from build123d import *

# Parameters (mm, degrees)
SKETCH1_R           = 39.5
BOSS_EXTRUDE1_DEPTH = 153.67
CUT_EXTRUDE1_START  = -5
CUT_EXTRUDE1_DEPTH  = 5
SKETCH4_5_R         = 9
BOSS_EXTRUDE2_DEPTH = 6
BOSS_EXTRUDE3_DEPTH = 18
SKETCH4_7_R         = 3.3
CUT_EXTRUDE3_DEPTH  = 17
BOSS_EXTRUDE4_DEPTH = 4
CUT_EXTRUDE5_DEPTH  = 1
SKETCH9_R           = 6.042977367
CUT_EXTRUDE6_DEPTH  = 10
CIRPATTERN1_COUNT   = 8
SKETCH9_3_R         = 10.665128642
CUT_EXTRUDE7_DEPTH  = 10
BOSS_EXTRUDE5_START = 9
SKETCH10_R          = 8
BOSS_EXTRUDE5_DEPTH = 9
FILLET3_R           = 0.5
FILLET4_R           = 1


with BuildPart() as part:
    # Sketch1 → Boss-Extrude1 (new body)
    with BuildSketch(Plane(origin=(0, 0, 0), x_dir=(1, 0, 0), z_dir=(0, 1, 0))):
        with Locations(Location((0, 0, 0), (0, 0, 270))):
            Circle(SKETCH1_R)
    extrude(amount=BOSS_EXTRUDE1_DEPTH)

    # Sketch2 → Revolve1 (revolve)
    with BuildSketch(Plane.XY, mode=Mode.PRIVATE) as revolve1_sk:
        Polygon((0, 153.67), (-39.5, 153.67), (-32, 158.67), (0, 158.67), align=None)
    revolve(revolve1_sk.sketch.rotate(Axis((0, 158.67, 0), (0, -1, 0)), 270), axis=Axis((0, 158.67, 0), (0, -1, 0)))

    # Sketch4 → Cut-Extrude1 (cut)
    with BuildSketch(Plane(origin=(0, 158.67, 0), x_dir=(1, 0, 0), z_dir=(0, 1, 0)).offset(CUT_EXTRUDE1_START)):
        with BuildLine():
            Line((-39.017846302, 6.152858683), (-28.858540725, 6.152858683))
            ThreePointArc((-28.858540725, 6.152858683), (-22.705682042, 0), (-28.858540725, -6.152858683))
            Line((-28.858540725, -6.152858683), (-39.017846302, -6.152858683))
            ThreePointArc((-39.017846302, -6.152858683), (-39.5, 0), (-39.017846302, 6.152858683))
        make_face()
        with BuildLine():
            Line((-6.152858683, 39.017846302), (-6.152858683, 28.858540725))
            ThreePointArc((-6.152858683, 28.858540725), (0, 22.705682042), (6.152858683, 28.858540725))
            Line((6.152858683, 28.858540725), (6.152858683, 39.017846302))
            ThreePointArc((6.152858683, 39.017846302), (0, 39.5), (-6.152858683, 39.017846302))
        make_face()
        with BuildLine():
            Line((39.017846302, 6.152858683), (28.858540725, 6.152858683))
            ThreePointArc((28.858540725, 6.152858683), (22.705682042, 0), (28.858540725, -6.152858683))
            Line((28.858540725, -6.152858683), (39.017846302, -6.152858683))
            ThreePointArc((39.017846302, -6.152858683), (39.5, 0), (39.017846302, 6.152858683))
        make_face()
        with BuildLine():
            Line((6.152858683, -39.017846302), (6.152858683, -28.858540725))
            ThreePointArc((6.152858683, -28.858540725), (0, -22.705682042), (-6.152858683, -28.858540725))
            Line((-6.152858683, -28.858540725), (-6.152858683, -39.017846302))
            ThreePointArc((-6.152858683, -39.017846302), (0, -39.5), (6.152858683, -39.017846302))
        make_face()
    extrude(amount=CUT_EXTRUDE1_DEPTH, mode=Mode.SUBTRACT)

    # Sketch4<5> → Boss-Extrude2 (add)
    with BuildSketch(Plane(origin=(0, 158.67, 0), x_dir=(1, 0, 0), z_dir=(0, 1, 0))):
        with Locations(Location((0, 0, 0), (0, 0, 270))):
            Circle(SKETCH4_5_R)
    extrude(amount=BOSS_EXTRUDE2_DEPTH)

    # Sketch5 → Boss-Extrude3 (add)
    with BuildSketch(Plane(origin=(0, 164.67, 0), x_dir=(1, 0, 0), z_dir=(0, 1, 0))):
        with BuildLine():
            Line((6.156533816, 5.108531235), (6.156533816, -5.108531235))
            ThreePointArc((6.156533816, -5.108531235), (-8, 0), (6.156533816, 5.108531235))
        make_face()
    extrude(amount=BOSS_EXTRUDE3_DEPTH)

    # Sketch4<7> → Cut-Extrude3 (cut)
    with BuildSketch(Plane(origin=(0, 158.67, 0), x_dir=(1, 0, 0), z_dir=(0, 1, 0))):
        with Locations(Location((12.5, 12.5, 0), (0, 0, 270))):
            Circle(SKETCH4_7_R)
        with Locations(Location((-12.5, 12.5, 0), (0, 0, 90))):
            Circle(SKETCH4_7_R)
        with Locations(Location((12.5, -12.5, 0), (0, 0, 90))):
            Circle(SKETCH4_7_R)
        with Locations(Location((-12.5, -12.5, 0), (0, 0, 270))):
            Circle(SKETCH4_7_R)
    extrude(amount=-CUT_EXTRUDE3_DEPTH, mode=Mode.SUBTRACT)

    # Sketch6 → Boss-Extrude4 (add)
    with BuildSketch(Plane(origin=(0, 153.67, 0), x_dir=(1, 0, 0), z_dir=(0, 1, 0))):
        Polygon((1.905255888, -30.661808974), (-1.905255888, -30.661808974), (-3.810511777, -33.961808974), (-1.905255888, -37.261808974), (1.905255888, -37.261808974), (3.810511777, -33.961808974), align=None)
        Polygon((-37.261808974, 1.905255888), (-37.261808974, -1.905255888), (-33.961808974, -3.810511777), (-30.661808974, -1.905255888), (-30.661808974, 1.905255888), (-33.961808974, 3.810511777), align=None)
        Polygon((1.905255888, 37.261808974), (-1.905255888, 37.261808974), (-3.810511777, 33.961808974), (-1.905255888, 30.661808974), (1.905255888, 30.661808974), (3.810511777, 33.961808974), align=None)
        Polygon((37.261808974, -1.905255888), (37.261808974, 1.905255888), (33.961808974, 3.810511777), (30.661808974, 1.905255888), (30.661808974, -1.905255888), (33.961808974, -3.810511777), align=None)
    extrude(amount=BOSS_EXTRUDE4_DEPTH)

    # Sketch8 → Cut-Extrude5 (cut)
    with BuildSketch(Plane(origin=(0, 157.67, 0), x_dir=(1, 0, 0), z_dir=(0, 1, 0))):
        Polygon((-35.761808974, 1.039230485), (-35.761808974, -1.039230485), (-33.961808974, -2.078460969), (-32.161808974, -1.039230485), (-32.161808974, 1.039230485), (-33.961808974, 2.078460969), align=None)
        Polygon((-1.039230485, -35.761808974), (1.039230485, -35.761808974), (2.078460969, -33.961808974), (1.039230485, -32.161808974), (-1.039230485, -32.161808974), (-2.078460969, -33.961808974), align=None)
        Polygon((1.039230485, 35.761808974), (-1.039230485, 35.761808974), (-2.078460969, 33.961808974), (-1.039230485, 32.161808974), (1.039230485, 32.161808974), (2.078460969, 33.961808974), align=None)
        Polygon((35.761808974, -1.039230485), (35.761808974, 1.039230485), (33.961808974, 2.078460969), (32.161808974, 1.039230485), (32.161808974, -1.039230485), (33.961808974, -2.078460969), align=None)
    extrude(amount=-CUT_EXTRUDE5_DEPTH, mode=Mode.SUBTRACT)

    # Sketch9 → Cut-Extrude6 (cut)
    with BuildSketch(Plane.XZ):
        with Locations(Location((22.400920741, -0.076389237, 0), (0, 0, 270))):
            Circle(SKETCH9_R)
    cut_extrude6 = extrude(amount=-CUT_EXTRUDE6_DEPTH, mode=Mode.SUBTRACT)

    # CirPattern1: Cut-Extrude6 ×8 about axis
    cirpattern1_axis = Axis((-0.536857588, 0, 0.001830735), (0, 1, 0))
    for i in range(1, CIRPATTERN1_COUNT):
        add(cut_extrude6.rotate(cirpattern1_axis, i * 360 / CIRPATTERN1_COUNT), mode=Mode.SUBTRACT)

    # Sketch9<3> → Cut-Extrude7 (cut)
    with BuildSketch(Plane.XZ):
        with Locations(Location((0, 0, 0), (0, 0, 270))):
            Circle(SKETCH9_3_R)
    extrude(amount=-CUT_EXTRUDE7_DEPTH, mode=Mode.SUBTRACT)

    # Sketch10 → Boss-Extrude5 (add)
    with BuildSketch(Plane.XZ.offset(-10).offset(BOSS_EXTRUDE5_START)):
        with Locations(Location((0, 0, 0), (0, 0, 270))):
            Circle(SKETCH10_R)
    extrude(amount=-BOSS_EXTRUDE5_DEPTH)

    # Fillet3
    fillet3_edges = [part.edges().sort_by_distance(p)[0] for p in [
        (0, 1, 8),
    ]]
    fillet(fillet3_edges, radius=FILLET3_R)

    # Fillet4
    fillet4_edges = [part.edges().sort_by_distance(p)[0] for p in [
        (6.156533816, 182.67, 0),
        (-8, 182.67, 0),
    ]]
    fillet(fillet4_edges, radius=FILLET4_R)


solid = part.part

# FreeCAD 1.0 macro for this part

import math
import FreeCAD as App
import Part
import Sketcher

V = App.Vector
Q = App.Units.Quantity


def edges_at(feature, points):
    """Names of the edges that pass closest to the given points."""
    edges = feature.Shape.Edges
    near = lambda p: min(range(len(edges)), key=lambda i: edges[i].distToShape(Part.Vertex(*p))[0])
    return sorted({f"Edge{near(p) + 1}" for p in points})


def add_polygon(sketch, points):
    """Adds a closed chain of lines whose ends are joined by coincident constraints."""
    first, n = sketch.GeometryCount, len(points)
    for a, b in zip(points, points[1:] + points[:1]):
        sketch.addGeometry(Part.LineSegment(App.Vector(*a, 0), App.Vector(*b, 0)), False)
    for i in range(n):
        sketch.addConstraint(Sketcher.Constraint("Coincident", first + i, 2, first + (i + 1) % n, 1))

doc = App.newDocument("Part")
params = doc.addObject("Spreadsheet::Sheet", "Params")
for row, (alias, value) in enumerate([
    ("sketch1_diameter", "79 mm"),
    ("pad1_length", "153.67 mm"),
    ("sketch2_width", "32 mm"),
    ("sketch2_height", "5 mm"),
    ("sketch2_width2", "39.5 mm"),
    ("revolution_angle", "360 deg"),
    ("sketch3_radius", "39.5 mm"),
    ("pocket1_length", "5 mm"),
    ("sketch4_diameter", "18 mm"),
    ("pad2_length", "6 mm"),
    ("sketch5_radius", "8 mm"),
    ("pad3_length", "18 mm"),
    ("sketch6_diameter", "6.6 mm"),
    ("pocket2_length", "17 mm"),
    ("pad4_length", "4 mm"),
    ("pocket3_length", "1 mm"),
    ("pocket4_length", "10 mm"),
    ("pocket5_length", "10 mm"),
    ("sketch11_diameter", "16 mm"),
    ("pad5_length", "9 mm"),
    ("fillet_radius", "0.5 mm"),
    ("fillet2_radius", "1 mm"),
], start=1):
    params.set(f"A{row}", alias)
    params.set(f"B{row}", "=" + value)
    params.setAlias(f"B{row}", alias)

body = doc.addObject("PartDesign::Body", "Body")

sketch1 = body.newObject("Sketcher::SketchObject", "Sketch")
sketch1.AttachmentSupport = (doc.getObject("XZ_Plane"), [""])
sketch1.MapMode = "FlatFace"
sketch1.addGeometry(Part.Circle(V(0, 0, 0), V(0, 0, 1), 40), False)
sketch1.addConstraint([
    Sketcher.Constraint("Coincident", 0, 3, -1, 1),
    Sketcher.Constraint("Diameter", 0, Q("79 mm")),
])
sketch1.setExpression("Constraints[1]", "Params.sketch1_diameter")
pad1 = body.newObject("PartDesign::Pad", "Pad")
pad1.Profile = sketch1
pad1.setExpression("Length", "Params.pad1_length")
pad1.Reversed = True

sketch2 = body.newObject("Sketcher::SketchObject", "Sketch001")
sketch2.AttachmentSupport = (doc.getObject("XY_Plane"), [""])
sketch2.MapMode = "FlatFace"
add_polygon(sketch2, [(-40, 154), (0, 154), (0, 159), (-32, 159)])
sketch2.addConstraint([
    Sketcher.Constraint("Horizontal", 0),
    Sketcher.Constraint("Vertical", 1),
    Sketcher.Constraint("Horizontal", 2),
    Sketcher.Constraint("PointOnObject", 0, 2, -2),
    Sketcher.Constraint("DistanceX", 2, 2, 2, 1, Q("32 mm")),
    Sketcher.Constraint("DistanceY", 1, 1, 1, 2, Q("5 mm")),
    Sketcher.Constraint("DistanceX", 0, 1, 0, 2, Q("39.5 mm")),
    Sketcher.Constraint("DistanceY", -1, 1, 0, 2, Q("153.67 mm")),
])
sketch2.setExpression("Constraints[8]", "Params.sketch2_width")
sketch2.setExpression("Constraints[9]", "Params.sketch2_height")
sketch2.setExpression("Constraints[10]", "Params.sketch2_width2")
revolution = body.newObject("PartDesign::Revolution", "Revolution")
revolution.Profile = sketch2
revolution.ReferenceAxis = (sketch2, ["V_Axis"])
revolution.setExpression("Angle", "Params.revolution_angle")

sketch3 = body.newObject("Sketcher::SketchObject", "Sketch002")
sketch3.AttachmentSupport = (doc.getObject("XZ_Plane"), [""])
sketch3.MapMode = "FlatFace"
sketch3.AttachmentOffset = App.Placement(V(0, 0, -153.67), App.Rotation())
sketch3.addGeometry([
    Part.LineSegment(V(-29, -6, 0), V(-39, -6, 0)),
    Part.ArcOfCircle(Part.Circle(V(0, 0, 0), V(0, 0, 1), 40), math.radians(171.04), math.radians(188.96)),
    Part.LineSegment(V(-39, 6, 0), V(-29, 6, 0)),
    Part.ArcOfCircle(Part.Circle(V(-29, 0, 0), V(0, 0, 1), 6), math.radians(-90), math.radians(90)),
    Part.LineSegment(V(-6, -39, 0), V(-6, -29, 0)),
    Part.ArcOfCircle(Part.Circle(V(0, -29, 0), V(0, 0, 1), 6), math.radians(0), math.radians(180)),
    Part.LineSegment(V(6, -29, 0), V(6, -39, 0)),
    Part.ArcOfCircle(Part.Circle(V(0, 0, 0), V(0, 0, 1), 40), math.radians(-98.96), math.radians(-81.04)),
    Part.LineSegment(V(39, -6, 0), V(29, -6, 0)),
    Part.ArcOfCircle(Part.Circle(V(29, 0, 0), V(0, 0, 1), 6), math.radians(90), math.radians(270)),
    Part.LineSegment(V(29, 6, 0), V(39, 6, 0)),
    Part.ArcOfCircle(Part.Circle(V(0, 0, 0), V(0, 0, 1), 40), math.radians(-8.96), math.radians(8.96)),
    Part.LineSegment(V(6, 39, 0), V(6, 29, 0)),
    Part.ArcOfCircle(Part.Circle(V(0, 29, 0), V(0, 0, 1), 6), math.radians(180), math.radians(360)),
    Part.LineSegment(V(-6, 29, 0), V(-6, 39, 0)),
    Part.ArcOfCircle(Part.Circle(V(0, 0, 0), V(0, 0, 1), 40), math.radians(81.04), math.radians(98.96)),
], False)
sketch3.addConstraint([
    Sketcher.Constraint("Coincident", 0, 2, 1, 2),
    Sketcher.Constraint("Coincident", 1, 1, 2, 1),
    Sketcher.Constraint("Tangent", 2, 2, 3, 2),
    Sketcher.Constraint("Tangent", 3, 1, 0, 1),
    Sketcher.Constraint("Tangent", 4, 2, 5, 2),
    Sketcher.Constraint("Tangent", 5, 1, 6, 1),
    Sketcher.Constraint("Coincident", 6, 2, 7, 2),
    Sketcher.Constraint("Coincident", 7, 1, 4, 1),
    Sketcher.Constraint("Tangent", 8, 2, 9, 2),
    Sketcher.Constraint("Tangent", 9, 1, 10, 1),
    Sketcher.Constraint("Coincident", 10, 2, 11, 2),
    Sketcher.Constraint("Coincident", 11, 1, 8, 1),
    Sketcher.Constraint("Tangent", 12, 2, 13, 2),
    Sketcher.Constraint("Tangent", 13, 1, 14, 1),
    Sketcher.Constraint("Coincident", 14, 2, 15, 2),
    Sketcher.Constraint("Coincident", 15, 1, 12, 1),
    Sketcher.Constraint("Horizontal", 0),
    Sketcher.Constraint("Horizontal", 2),
    Sketcher.Constraint("Vertical", 4),
    Sketcher.Constraint("Vertical", 6),
    Sketcher.Constraint("Horizontal", 8),
    Sketcher.Constraint("Horizontal", 10),
    Sketcher.Constraint("Vertical", 12),
    Sketcher.Constraint("Vertical", 14),
    Sketcher.Constraint("Coincident", 1, 3, -1, 1),
    Sketcher.Constraint("Coincident", 7, 3, -1, 1),
    Sketcher.Constraint("Coincident", 11, 3, -1, 1),
    Sketcher.Constraint("Coincident", 15, 3, -1, 1),
    Sketcher.Constraint("Equal", 3, 5),
    Sketcher.Constraint("Equal", 1, 7),
    Sketcher.Constraint("Equal", 5, 9),
    Sketcher.Constraint("Equal", 7, 11),
    Sketcher.Constraint("Equal", 9, 13),
    Sketcher.Constraint("Equal", 11, 15),
    Sketcher.Constraint("Symmetric", 3, 3, 9, 3, -1, 1),
    Sketcher.Constraint("Symmetric", 5, 3, 13, 3, -1, 1),
    Sketcher.Constraint("PointOnObject", 3, 3, -1),
    Sketcher.Constraint("PointOnObject", 5, 3, -2),
    Sketcher.Constraint("Equal", 10, 4),
    Sketcher.Constraint("Radius", 1, Q("39.5 mm")),
    Sketcher.Constraint("Radius", 3, Q("6.152859 mm")),
    Sketcher.Constraint("DistanceX", 0, 2, 0, 1, Q("10.159306 mm")),
])
sketch3.setExpression("Constraints[39]", "Params.sketch3_radius")
pocket1 = body.newObject("PartDesign::Pocket", "Pocket")
pocket1.Profile = sketch3
pocket1.setExpression("Length", "Params.pocket1_length")

sketch4 = body.newObject("Sketcher::SketchObject", "Sketch003")
sketch4.AttachmentSupport = (doc.getObject("XZ_Plane"), [""])
sketch4.MapMode = "FlatFace"
sketch4.AttachmentOffset = App.Placement(V(0, 0, -158.67), App.Rotation())
sketch4.addGeometry(Part.Circle(V(0, 0, 0), V(0, 0, 1), 9), False)
sketch4.addConstraint([
    Sketcher.Constraint("Coincident", 0, 3, -1, 1),
    Sketcher.Constraint("Diameter", 0, Q("18 mm")),
])
sketch4.setExpression("Constraints[1]", "Params.sketch4_diameter")
pad2 = body.newObject("PartDesign::Pad", "Pad001")
pad2.Profile = sketch4
pad2.setExpression("Length", "Params.pad2_length")
pad2.Reversed = True

sketch5 = body.newObject("Sketcher::SketchObject", "Sketch004")
sketch5.AttachmentSupport = (doc.getObject("XZ_Plane"), [""])
sketch5.MapMode = "FlatFace"
sketch5.AttachmentOffset = App.Placement(V(0, 0, -164.67), App.Rotation())
sketch5.addGeometry([
    Part.LineSegment(V(6, 5, 0), V(6, -5, 0)),
    Part.ArcOfCircle(Part.Circle(V(0, 0, 0), V(0, 0, 1), 8), math.radians(40), math.radians(320)),
], False)
sketch5.addConstraint([
    Sketcher.Constraint("Coincident", 0, 1, 1, 1),
    Sketcher.Constraint("Coincident", 1, 2, 0, 2),
    Sketcher.Constraint("Vertical", 0),
    Sketcher.Constraint("Coincident", 1, 3, -1, 1),
    Sketcher.Constraint("Radius", 1, Q("8 mm")),
    Sketcher.Constraint("DistanceY", 0, 2, 0, 1, Q("10.217062 mm")),
])
sketch5.setExpression("Constraints[4]", "Params.sketch5_radius")
pad3 = body.newObject("PartDesign::Pad", "Pad002")
pad3.Profile = sketch5
pad3.setExpression("Length", "Params.pad3_length")
pad3.Reversed = True

sketch6 = body.newObject("Sketcher::SketchObject", "Sketch005")
sketch6.AttachmentSupport = (doc.getObject("XZ_Plane"), [""])
sketch6.MapMode = "FlatFace"
sketch6.AttachmentOffset = App.Placement(V(0, 0, -158.67), App.Rotation())
sketch6.addGeometry([
    Part.Circle(V(12.5, -12.5, 0), V(0, 0, 1), 3.3),
    Part.Circle(V(-12.5, -12.5, 0), V(0, 0, 1), 3.3),
    Part.Circle(V(12.5, 12.5, 0), V(0, 0, 1), 3.3),
    Part.Circle(V(-12.5, 12.5, 0), V(0, 0, 1), 3.3),
], False)
sketch6.addConstraint([
    Sketcher.Constraint("Equal", 0, 1),
    Sketcher.Constraint("Equal", 1, 2),
    Sketcher.Constraint("Equal", 2, 3),
    Sketcher.Constraint("Symmetric", 1, 3, 2, 3, -1, 1),
    Sketcher.Constraint("Symmetric", 0, 3, 3, 3, -1, 1),
    Sketcher.Constraint("Symmetric", 0, 3, 1, 3, -2),
    Sketcher.Constraint("Diameter", 0, Q("6.6 mm")),
    Sketcher.Constraint("DistanceX", 1, 3, 0, 3, Q("25 mm")),
    Sketcher.Constraint("DistanceY", 0, 3, 2, 3, Q("25 mm")),
])
sketch6.setExpression("Constraints[6]", "Params.sketch6_diameter")
pocket2 = body.newObject("PartDesign::Pocket", "Pocket001")
pocket2.Profile = sketch6
pocket2.setExpression("Length", "Params.pocket2_length")
pocket2.Reversed = True

sketch7 = body.newObject("Sketcher::SketchObject", "Sketch006")
sketch7.AttachmentSupport = (doc.getObject("XZ_Plane"), [""])
sketch7.MapMode = "FlatFace"
sketch7.AttachmentOffset = App.Placement(V(0, 0, -153.67), App.Rotation())
add_polygon(sketch7, [(1.9, 30.7), (-1.9, 30.7), (-3.8, 34), (-1.9, 37.3), (1.9, 37.3), (3.8, 34)])
add_polygon(sketch7, [(-37.3, -1.9), (-37.3, 1.9), (-34, 3.8), (-30.7, 1.9), (-30.7, -1.9), (-34, -3.8)])
add_polygon(sketch7, [(1.9, -37.3), (-1.9, -37.3), (-3.8, -34), (-1.9, -30.7), (1.9, -30.7), (3.8, -34)])
add_polygon(sketch7, [(37.3, 1.9), (37.3, -1.9), (34, -3.8), (30.7, -1.9), (30.7, 1.9), (34, 3.8)])
sketch7.addConstraint([
    Sketcher.Constraint("Horizontal", 0),
    Sketcher.Constraint("Horizontal", 3),
    Sketcher.Constraint("Vertical", 6),
    Sketcher.Constraint("Vertical", 9),
    Sketcher.Constraint("Horizontal", 12),
    Sketcher.Constraint("Horizontal", 15),
    Sketcher.Constraint("Vertical", 18),
    Sketcher.Constraint("Vertical", 21),
    Sketcher.Constraint("Symmetric", 3, 2, 12, 2, -1, 1),
    Sketcher.Constraint("Symmetric", 4, 2, 13, 2, -1, 1),
    Sketcher.Constraint("Symmetric", 5, 2, 14, 2, -1, 1),
    Sketcher.Constraint("Symmetric", 1, 2, 16, 2, -1, 1),
    Sketcher.Constraint("Symmetric", 6, 2, 18, 2, -1, 1),
    Sketcher.Constraint("Symmetric", 7, 2, 19, 2, -1, 1),
    Sketcher.Constraint("Symmetric", 8, 2, 20, 2, -1, 1),
    Sketcher.Constraint("Symmetric", 10, 2, 22, 2, -1, 1),
    Sketcher.Constraint("Symmetric", 1, 2, 4, 2, -2),
    Sketcher.Constraint("Symmetric", 10, 2, 19, 2, -2),
    Sketcher.Constraint("Parallel", 1, 4),
    Sketcher.Constraint("Parallel", 2, 5),
    Sketcher.Constraint("Perpendicular", 4, 7),
    Sketcher.Constraint("Perpendicular", 5, 8),
    Sketcher.Constraint("Parallel", 7, 10),
    Sketcher.Constraint("Parallel", 8, 11),
    Sketcher.Constraint("Parallel", 13, 16),
    Sketcher.Constraint("Parallel", 14, 17),
    Sketcher.Constraint("Parallel", 19, 22),
    Sketcher.Constraint("Parallel", 20, 23),
    Sketcher.Constraint("Horizontal", 6, 2, 8, 2),
    Sketcher.Constraint("Horizontal", 9, 2, 11, 2),
    Sketcher.Constraint("Vertical", 0, 2, 2, 2),
    Sketcher.Constraint("Equal", 15, 6),
    Sketcher.Constraint("Equal", 5, 7),
    Sketcher.Constraint("Angle", 1, Q("120 deg")),
    Sketcher.Constraint("DistanceY", 0, 2, 1, 2, Q("3.3 mm")),
    Sketcher.Constraint("DistanceX", 0, 2, 0, 1, Q("3.810512 mm")),
    Sketcher.Constraint("DistanceY", -1, 1, 0, 2, Q("30.661809 mm")),
    Sketcher.Constraint("DistanceX", 6, 2, -1, 1, Q("37.261809 mm")),
])
pad4 = body.newObject("PartDesign::Pad", "Pad003")
pad4.Profile = sketch7
pad4.setExpression("Length", "Params.pad4_length")
pad4.Reversed = True

sketch8 = body.newObject("Sketcher::SketchObject", "Sketch007")
sketch8.AttachmentSupport = (doc.getObject("XZ_Plane"), [""])
sketch8.MapMode = "FlatFace"
sketch8.AttachmentOffset = App.Placement(V(0, 0, -157.67), App.Rotation())
add_polygon(sketch8, [(-35.8, -1), (-35.8, 1), (-34, 2.1), (-32.2, 1), (-32.2, -1), (-34, -2.1)])
add_polygon(sketch8, [(-1, 35.8), (1, 35.8), (2.1, 34), (1, 32.2), (-1, 32.2), (-2.1, 34)])
add_polygon(sketch8, [(1, -35.8), (-1, -35.8), (-2.1, -34), (-1, -32.2), (1, -32.2), (2.1, -34)])
add_polygon(sketch8, [(35.8, 1), (35.8, -1), (34, -2.1), (32.2, -1), (32.2, 1), (34, 2.1)])
sketch8.addConstraint([
    Sketcher.Constraint("Vertical", 0),
    Sketcher.Constraint("Vertical", 3),
    Sketcher.Constraint("Horizontal", 6),
    Sketcher.Constraint("Horizontal", 9),
    Sketcher.Constraint("Horizontal", 12),
    Sketcher.Constraint("Horizontal", 15),
    Sketcher.Constraint("Vertical", 18),
    Sketcher.Constraint("Vertical", 21),
    Sketcher.Constraint("Symmetric", 6, 2, 12, 2, -1, 1),
    Sketcher.Constraint("Symmetric", 7, 2, 13, 2, -1, 1),
    Sketcher.Constraint("Symmetric", 8, 2, 14, 2, -1, 1),
    Sketcher.Constraint("Symmetric", 10, 2, 16, 2, -1, 1),
    Sketcher.Constraint("Symmetric", 0, 2, 18, 2, -1, 1),
    Sketcher.Constraint("Symmetric", 1, 2, 19, 2, -1, 1),
    Sketcher.Constraint("Symmetric", 2, 2, 20, 2, -1, 1),
    Sketcher.Constraint("Symmetric", 4, 2, 22, 2, -1, 1),
    Sketcher.Constraint("Symmetric", 7, 2, 10, 2, -2),
    Sketcher.Constraint("Symmetric", 4, 2, 19, 2, -2),
    Sketcher.Constraint("Parallel", 1, 4),
    Sketcher.Constraint("Parallel", 2, 5),
    Sketcher.Constraint("Perpendicular", 4, 7),
    Sketcher.Constraint("Perpendicular", 5, 8),
    Sketcher.Constraint("Parallel", 7, 10),
    Sketcher.Constraint("Parallel", 8, 11),
    Sketcher.Constraint("Parallel", 13, 16),
    Sketcher.Constraint("Parallel", 14, 17),
    Sketcher.Constraint("Parallel", 19, 22),
    Sketcher.Constraint("Parallel", 20, 23),
    Sketcher.Constraint("Horizontal", 0, 2, 2, 2),
    Sketcher.Constraint("Horizontal", 3, 2, 5, 2),
    Sketcher.Constraint("Vertical", 6, 2, 8, 2),
    Sketcher.Constraint("Equal", 15, 0),
    Sketcher.Constraint("Equal", 5, 7),
    Sketcher.Constraint("Angle", 1, Q("30 deg")),
    Sketcher.Constraint("DistanceX", 0, 2, 1, 2, Q("1.8 mm")),
    Sketcher.Constraint("DistanceX", 6, 1, 6, 2, Q("2.078461 mm")),
    Sketcher.Constraint("DistanceX", 0, 2, -1, 1, Q("35.761809 mm")),
    Sketcher.Constraint("DistanceY", -1, 1, 6, 2, Q("35.761809 mm")),
])
pocket3 = body.newObject("PartDesign::Pocket", "Pocket002")
pocket3.Profile = sketch8
pocket3.setExpression("Length", "Params.pocket3_length")
pocket3.Reversed = True

sketch9 = body.newObject("Sketcher::SketchObject", "Sketch008")
sketch9.AttachmentSupport = (doc.getObject("XZ_Plane"), [""])
sketch9.MapMode = "FlatFace"
sketch9.addGeometry(Part.Circle(V(22, 0, 0), V(0, 0, 1), 6), False)
sketch9.addConstraint([
    Sketcher.Constraint("Diameter", 0, Q("12.085955 mm")),
    Sketcher.Constraint("DistanceX", -1, 1, 0, 3, Q("22.400921 mm")),
    Sketcher.Constraint("DistanceY", 0, 3, -1, 1, Q("0.076389 mm")),
])
pocket4 = body.newObject("PartDesign::Pocket", "Pocket003")
pocket4.Profile = sketch9
pocket4.setExpression("Length", "Params.pocket4_length")
doc.recompute()

datumline = body.newObject("PartDesign::Line", "DatumLine")
datumline.Placement = App.Placement(V(-0.536858, 0, 0.001831), App.Rotation(V(0, 0, 1), V(0, 1, 0)))
polarpattern = body.newObject("PartDesign::PolarPattern", "PolarPattern")
polarpattern.Originals = [pocket4]
polarpattern.Axis = (datumline, [""])
polarpattern.Angle = 360
polarpattern.Occurrences = 8
body.Tip = polarpattern

sketch10 = body.newObject("Sketcher::SketchObject", "Sketch009")
sketch10.AttachmentSupport = (doc.getObject("XZ_Plane"), [""])
sketch10.MapMode = "FlatFace"
sketch10.addGeometry(Part.Circle(V(0, 0, 0), V(0, 0, 1), 11), False)
sketch10.addConstraint([
    Sketcher.Constraint("Coincident", 0, 3, -1, 1),
    Sketcher.Constraint("Diameter", 0, Q("21.330257 mm")),
])
pocket5 = body.newObject("PartDesign::Pocket", "Pocket004")
pocket5.Profile = sketch10
pocket5.setExpression("Length", "Params.pocket5_length")

sketch11 = body.newObject("Sketcher::SketchObject", "Sketch010")
sketch11.AttachmentSupport = (doc.getObject("XZ_Plane"), [""])
sketch11.MapMode = "FlatFace"
sketch11.AttachmentOffset = App.Placement(V(0, 0, -1), App.Rotation())
sketch11.addGeometry(Part.Circle(V(0, 0, 0), V(0, 0, 1), 8), False)
sketch11.addConstraint([
    Sketcher.Constraint("Coincident", 0, 3, -1, 1),
    Sketcher.Constraint("Diameter", 0, Q("16 mm")),
])
sketch11.setExpression("Constraints[1]", "Params.sketch11_diameter")
pad5 = body.newObject("PartDesign::Pad", "Pad004")
pad5.Profile = sketch11
pad5.setExpression("Length", "Params.pad5_length")
pad5.Reversed = True
doc.recompute()

fillet = body.newObject("PartDesign::Fillet", "Fillet")
fillet.Base = (pad5, edges_at(pad5, [(0, 1, 8)]))
fillet.setExpression("Radius", "Params.fillet_radius")
doc.recompute()

fillet2 = body.newObject("PartDesign::Fillet", "Fillet001")
fillet2.Base = (fillet, edges_at(fillet, [(6.157, 182.67, 0), (-8, 182.67, 0)]))
fillet2.setExpression("Radius", "Params.fillet2_radius")

doc.recompute()
